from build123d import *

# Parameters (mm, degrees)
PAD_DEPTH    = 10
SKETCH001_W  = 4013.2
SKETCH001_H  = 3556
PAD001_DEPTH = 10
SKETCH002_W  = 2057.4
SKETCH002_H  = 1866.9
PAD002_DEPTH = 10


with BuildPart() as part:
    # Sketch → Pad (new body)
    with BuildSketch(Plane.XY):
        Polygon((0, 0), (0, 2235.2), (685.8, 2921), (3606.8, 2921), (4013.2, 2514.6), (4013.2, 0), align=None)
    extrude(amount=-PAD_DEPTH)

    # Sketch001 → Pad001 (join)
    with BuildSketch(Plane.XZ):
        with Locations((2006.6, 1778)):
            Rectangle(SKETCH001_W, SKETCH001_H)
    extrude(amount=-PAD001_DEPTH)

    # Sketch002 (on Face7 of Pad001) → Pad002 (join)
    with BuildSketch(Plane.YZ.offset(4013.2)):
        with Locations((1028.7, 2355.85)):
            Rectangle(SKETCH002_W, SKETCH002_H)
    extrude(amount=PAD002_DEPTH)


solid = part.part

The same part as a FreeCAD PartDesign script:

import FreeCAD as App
import Part
import Sketcher

V = App.Vector
Q = App.Units.Quantity

doc = App.newDocument("Part")
body = doc.addObject("PartDesign::Body", "Body")

sketch1 = body.newObject("Sketcher::SketchObject", "Sketch")
sketch1.AttachmentSupport = (doc.getObject("XY_Plane"), [""])
sketch1.MapMode = "FlatFace"
sketch1.addGeometry([
    Part.LineSegment(V(0, 2235.2, 0), V(0, 0, 0)),
    Part.LineSegment(V(0, 0, 0), V(4013.2, 0, 0)),
    Part.LineSegment(V(4013.2, 0, 0), V(4013.2, 2514.6, 0)),
    Part.LineSegment(V(4013.2, 2514.6, 0), V(3606.8, 2921, 0)),
    Part.LineSegment(V(3606.8, 2921, 0), V(685.8, 2921, 0)),
    Part.LineSegment(V(685.8, 2921, 0), V(0, 2235.2, 0)),
], False)
sketch1.addConstraint([
    Sketcher.Constraint("Coincident", 0, 2, 1, 1),
    Sketcher.Constraint("Coincident", 1, 2, 2, 1),
    Sketcher.Constraint("Coincident", 2, 2, 3, 1),
    Sketcher.Constraint("Coincident", 3, 2, 4, 1),
    Sketcher.Constraint("Coincident", 4, 2, 5, 1),
    Sketcher.Constraint("Coincident", 5, 2, 0, 1),
    Sketcher.Constraint("Vertical", 0),
    Sketcher.Constraint("Horizontal", 1),
    Sketcher.Constraint("Vertical", 2),
    Sketcher.Constraint("Horizontal", 4),
    Sketcher.Constraint("Coincident", 0, 2, -1, 1),
    Sketcher.Constraint("Perpendicular", 3, 5),
    Sketcher.Constraint("DistanceX", 1, 1, 1, 2, Q("158 in")),
    Sketcher.Constraint("DistanceX", 4, 2, 4, 1, Q("115 in")),
    Sketcher.Constraint("DistanceY", 0, 2, 0, 1, Q("88 in")),
    Sketcher.Constraint("DistanceY", 2, 1, 2, 2, Q("99 in")),
    Sketcher.Constraint("DistanceX", -1, 1, 3, 2, Q("142 in")),
])
pad1 = body.newObject("PartDesign::Pad", "Pad")
pad1.Profile = sketch1
pad1.Length = 10
pad1.Reversed = True

sketch2 = body.newObject("Sketcher::SketchObject", "Sketch001")
sketch2.AttachmentSupport = (doc.getObject("XZ_Plane"), [""])
sketch2.MapMode = "FlatFace"
sketch2.addGeometry([
    Part.LineSegment(V(0, 3556, 0), V(0, 0, 0)),
    Part.LineSegment(V(0, 0, 0), V(4013.2, 0, 0)),
    Part.LineSegment(V(4013.2, 0, 0), V(4013.2, 3556, 0)),
    Part.LineSegment(V(4013.2, 3556, 0), V(0, 3556, 0)),
], False)
sketch2.addConstraint([
    Sketcher.Constraint("Coincident", 0, 2, 1, 1),
    Sketcher.Constraint("Coincident", 1, 2, 2, 1),
    Sketcher.Constraint("Coincident", 2, 2, 3, 1),
    Sketcher.Constraint("Coincident", 3, 2, 0, 1),
    Sketcher.Constraint("Vertical", 0),
    Sketcher.Constraint("Horizontal", 1),
    Sketcher.Constraint("Vertical", 2),
    Sketcher.Constraint("Horizontal", 3),
    Sketcher.Constraint("Coincident", 0, 2, -1, 1),
    Sketcher.Constraint("DistanceX", 1, 1, 1, 2, Q("158 in")),
    Sketcher.Constraint("DistanceY", 0, 2, 0, 1, Q("140 in")),
])
pad2 = body.newObject("PartDesign::Pad", "Pad001")
pad2.Profile = sketch2
pad2.Length = 10
pad2.Reversed = True

sketch3 = body.newObject("Sketcher::SketchObject", "Sketch002")
sketch3.AttachmentSupport = (doc.getObject("YZ_Plane"), [""])
sketch3.MapMode = "FlatFace"
sketch3.AttachmentOffset = App.Placement(V(0, 0, 158 * 25.4), App.Rotation())
sketch3.addGeometry([
    Part.LineSegment(V(0, 3289.3, 0), V(0, 1422.4, 0)),
    Part.LineSegment(V(0, 1422.4, 0), V(2057.4, 1422.4, 0)),
    Part.LineSegment(V(2057.4, 1422.4, 0), V(2057.4, 3289.3, 0)),
    Part.LineSegment(V(2057.4, 3289.3, 0), V(0, 3289.3, 0)),
], False)
sketch3.addConstraint([
    Sketcher.Constraint("Coincident", 0, 2, 1, 1),
    Sketcher.Constraint("Coincident", 1, 2, 2, 1),
    Sketcher.Constraint("Coincident", 2, 2, 3, 1),
    Sketcher.Constraint("Coincident", 3, 2, 0, 1),
    Sketcher.Constraint("Vertical", 0),
    Sketcher.Constraint("Horizontal", 1),
    Sketcher.Constraint("Vertical", 2),
    Sketcher.Constraint("Horizontal", 3),
    Sketcher.Constraint("PointOnObject", 0, 2, -2),
    Sketcher.Constraint("DistanceX", 1, 1, 1, 2, Q("81 in")),
    Sketcher.Constraint("DistanceY", 0, 2, 0, 1, Q("73.5 in")),
    Sketcher.Constraint("DistanceY", -1, 1, 0, 2, Q("56 in")),
])
pad3 = body.newObject("PartDesign::Pad", "Pad002")
pad3.Profile = sketch3
pad3.Length = 10

doc.recompute()
